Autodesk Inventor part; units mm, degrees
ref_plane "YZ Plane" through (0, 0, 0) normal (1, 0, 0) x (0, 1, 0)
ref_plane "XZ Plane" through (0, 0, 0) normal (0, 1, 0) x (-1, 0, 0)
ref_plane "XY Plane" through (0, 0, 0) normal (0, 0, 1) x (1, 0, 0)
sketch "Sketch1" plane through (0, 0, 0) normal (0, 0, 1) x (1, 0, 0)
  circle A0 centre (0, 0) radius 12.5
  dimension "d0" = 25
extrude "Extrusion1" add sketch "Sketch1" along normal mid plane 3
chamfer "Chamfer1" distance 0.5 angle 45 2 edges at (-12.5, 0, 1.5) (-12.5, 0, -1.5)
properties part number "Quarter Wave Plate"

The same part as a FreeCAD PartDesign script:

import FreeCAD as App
import Part
import Sketcher


def edges_at(feature, points):
    """Names of the edges that pass closest to the given points."""
    edges = feature.Shape.Edges
    near = lambda p: min(range(len(edges)), key=lambda i: edges[i].distToShape(Part.Vertex(*p))[0])
    return sorted({f"Edge{near(p) + 1}" for p in points})

doc = App.newDocument("Part")
body = doc.addObject("PartDesign::Body", "Body")

sketch1 = body.newObject("Sketcher::SketchObject", "Sketch")
sketch1.AttachmentSupport = (doc.getObject("XY_Plane"), [""])
sketch1.MapMode = "FlatFace"
sketch1.addGeometry(Part.Circle(App.Vector(0, 0, 0), App.Vector(0, 0, 1), 12.5), False)
sketch1.addConstraint([
    Sketcher.Constraint("Coincident", 0, 3, -1, 1),
    Sketcher.Constraint("Diameter", 0, 25.0),
])
pad1 = body.newObject("PartDesign::Pad", "Pad")
pad1.Profile = sketch1
pad1.Length = 3
pad1.Midplane = True
doc.recompute()

chamfer = body.newObject("PartDesign::Chamfer", "Chamfer")
chamfer.Base = (pad1, edges_at(pad1, [(-12.5, 0, 1.5), (-12.5, 0, -1.5)]))
chamfer.Size = 0.5

doc.recompute()
